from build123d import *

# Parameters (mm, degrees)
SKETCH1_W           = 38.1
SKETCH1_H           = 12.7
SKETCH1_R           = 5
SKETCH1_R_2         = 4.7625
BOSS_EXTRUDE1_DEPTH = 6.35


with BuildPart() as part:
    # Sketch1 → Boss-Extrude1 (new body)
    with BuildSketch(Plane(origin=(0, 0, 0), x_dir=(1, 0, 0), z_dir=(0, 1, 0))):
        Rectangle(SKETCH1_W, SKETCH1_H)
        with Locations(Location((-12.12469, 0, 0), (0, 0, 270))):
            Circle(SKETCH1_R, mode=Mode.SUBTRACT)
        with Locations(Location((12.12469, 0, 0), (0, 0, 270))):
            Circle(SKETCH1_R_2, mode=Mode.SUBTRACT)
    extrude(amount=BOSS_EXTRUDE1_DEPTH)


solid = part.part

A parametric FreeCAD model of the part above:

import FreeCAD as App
import Part
import Sketcher
Q = App.Units.Quantity

doc = App.newDocument("Part")
params = doc.addObject("Spreadsheet::Sheet", "Params")
for row, (alias, value) in enumerate([
    ("sketch1_diameter", "0.375 in"),
    ("sketch1_width", "1.5 in"),
    ("sketch1_height", "0.5 in"),
    ("pad1_length", "0.25 in"),
], start=1):
    params.set(f"A{row}", alias)
    params.set(f"B{row}", "=" + value)
    params.setAlias(f"B{row}", alias)

body = doc.addObject("PartDesign::Body", "Body")

sketch1 = body.newObject("Sketcher::SketchObject", "Sketch")
sketch1.AttachmentSupport = (doc.getObject("XZ_Plane"), [""])
sketch1.MapMode = "FlatFace"
sketch1.addGeometry([
    Part.LineSegment(App.Vector(-19.05, -6.35, 0), App.Vector(-19.05, 6.35, 0)),
    Part.LineSegment(App.Vector(-19.05, 6.35, 0), App.Vector(19.05, 6.35, 0)),
    Part.LineSegment(App.Vector(19.05, 6.35, 0), App.Vector(19.05, -6.35, 0)),
    Part.LineSegment(App.Vector(19.05, -6.35, 0), App.Vector(-19.05, -6.35, 0)),
    Part.Circle(App.Vector(-12.12469, 0, 0), App.Vector(0, 0, 1), 5),
    Part.Circle(App.Vector(12.12469, 0, 0), App.Vector(0, 0, 1), 4.7625),
], False)
sketch1.addConstraint([
    Sketcher.Constraint("Coincident", 0, 2, 1, 1),
    Sketcher.Constraint("Coincident", 1, 2, 2, 1),
    Sketcher.Constraint("Coincident", 2, 2, 3, 1),
    Sketcher.Constraint("Coincident", 3, 2, 0, 1),
    Sketcher.Constraint("Vertical", 0),
    Sketcher.Constraint("Horizontal", 1),
    Sketcher.Constraint("Vertical", 2),
    Sketcher.Constraint("Horizontal", 3),
    Sketcher.Constraint("Symmetric", 4, 3, 5, 3, -1, 1),
    Sketcher.Constraint("Symmetric", 0, 2, 2, 2, -1, 1),
    Sketcher.Constraint("PointOnObject", 4, 3, -1),
    Sketcher.Constraint("Diameter", 5, Q("0.375 in")),
    Sketcher.Constraint("DistanceX", 1, 1, 1, 2, Q("1.5 in")),
    Sketcher.Constraint("DistanceY", 0, 1, 0, 2, Q("0.5 in")),
    Sketcher.Constraint("Diameter", 4, Q("10 mm")),
    Sketcher.Constraint("DistanceX", 4, 3, 5, 3, Q("0.9547 in")),
])
sketch1.setExpression("Constraints[11]", "Params.sketch1_diameter")
sketch1.setExpression("Constraints[12]", "Params.sketch1_width")
sketch1.setExpression("Constraints[13]", "Params.sketch1_height")
pad1 = body.newObject("PartDesign::Pad", "Pad")
pad1.Profile = sketch1
pad1.setExpression("Length", "Params.pad1_length")
pad1.Reversed = True

doc.recompute()
